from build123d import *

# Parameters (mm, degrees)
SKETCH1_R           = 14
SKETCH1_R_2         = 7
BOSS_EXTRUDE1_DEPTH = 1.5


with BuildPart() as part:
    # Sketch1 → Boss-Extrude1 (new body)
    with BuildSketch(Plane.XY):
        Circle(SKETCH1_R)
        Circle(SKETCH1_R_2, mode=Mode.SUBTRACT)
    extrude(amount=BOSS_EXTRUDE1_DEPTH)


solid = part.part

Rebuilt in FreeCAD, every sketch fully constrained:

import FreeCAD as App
import Part
import Sketcher

doc = App.newDocument("Part")
body = doc.addObject("PartDesign::Body", "Body")

# Sketch on XY plane
sketch1 = doc.addObject("Sketcher::SketchObject", "Sketch")
body.addObject(sketch1)
sketch1.AttachmentSupport = (doc.XY_Plane, [""])
sketch1.MapMode = "FlatFace"
sketch1.addGeometry(Part.Circle(App.Vector(0, 0, 0), App.Vector(0, 0, 1), 14), False)
sketch1.addGeometry(Part.Circle(App.Vector(0, 0, 0), App.Vector(0, 0, 1), 7), False)
sketch1.addConstraint(Sketcher.Constraint("Coincident", 0, 3, -1, 1))
sketch1.addConstraint(Sketcher.Constraint("Coincident", 1, 3, -1, 1))
sketch1.addConstraint(Sketcher.Constraint("Diameter", 0, 28.0))
sketch1.addConstraint(Sketcher.Constraint("Diameter", 1, 14.0))
pad1 = doc.addObject("PartDesign::Pad", "Pad")
body.addObject(pad1)
pad1.Profile = sketch1
pad1.Length = 1.5

doc.recompute()
